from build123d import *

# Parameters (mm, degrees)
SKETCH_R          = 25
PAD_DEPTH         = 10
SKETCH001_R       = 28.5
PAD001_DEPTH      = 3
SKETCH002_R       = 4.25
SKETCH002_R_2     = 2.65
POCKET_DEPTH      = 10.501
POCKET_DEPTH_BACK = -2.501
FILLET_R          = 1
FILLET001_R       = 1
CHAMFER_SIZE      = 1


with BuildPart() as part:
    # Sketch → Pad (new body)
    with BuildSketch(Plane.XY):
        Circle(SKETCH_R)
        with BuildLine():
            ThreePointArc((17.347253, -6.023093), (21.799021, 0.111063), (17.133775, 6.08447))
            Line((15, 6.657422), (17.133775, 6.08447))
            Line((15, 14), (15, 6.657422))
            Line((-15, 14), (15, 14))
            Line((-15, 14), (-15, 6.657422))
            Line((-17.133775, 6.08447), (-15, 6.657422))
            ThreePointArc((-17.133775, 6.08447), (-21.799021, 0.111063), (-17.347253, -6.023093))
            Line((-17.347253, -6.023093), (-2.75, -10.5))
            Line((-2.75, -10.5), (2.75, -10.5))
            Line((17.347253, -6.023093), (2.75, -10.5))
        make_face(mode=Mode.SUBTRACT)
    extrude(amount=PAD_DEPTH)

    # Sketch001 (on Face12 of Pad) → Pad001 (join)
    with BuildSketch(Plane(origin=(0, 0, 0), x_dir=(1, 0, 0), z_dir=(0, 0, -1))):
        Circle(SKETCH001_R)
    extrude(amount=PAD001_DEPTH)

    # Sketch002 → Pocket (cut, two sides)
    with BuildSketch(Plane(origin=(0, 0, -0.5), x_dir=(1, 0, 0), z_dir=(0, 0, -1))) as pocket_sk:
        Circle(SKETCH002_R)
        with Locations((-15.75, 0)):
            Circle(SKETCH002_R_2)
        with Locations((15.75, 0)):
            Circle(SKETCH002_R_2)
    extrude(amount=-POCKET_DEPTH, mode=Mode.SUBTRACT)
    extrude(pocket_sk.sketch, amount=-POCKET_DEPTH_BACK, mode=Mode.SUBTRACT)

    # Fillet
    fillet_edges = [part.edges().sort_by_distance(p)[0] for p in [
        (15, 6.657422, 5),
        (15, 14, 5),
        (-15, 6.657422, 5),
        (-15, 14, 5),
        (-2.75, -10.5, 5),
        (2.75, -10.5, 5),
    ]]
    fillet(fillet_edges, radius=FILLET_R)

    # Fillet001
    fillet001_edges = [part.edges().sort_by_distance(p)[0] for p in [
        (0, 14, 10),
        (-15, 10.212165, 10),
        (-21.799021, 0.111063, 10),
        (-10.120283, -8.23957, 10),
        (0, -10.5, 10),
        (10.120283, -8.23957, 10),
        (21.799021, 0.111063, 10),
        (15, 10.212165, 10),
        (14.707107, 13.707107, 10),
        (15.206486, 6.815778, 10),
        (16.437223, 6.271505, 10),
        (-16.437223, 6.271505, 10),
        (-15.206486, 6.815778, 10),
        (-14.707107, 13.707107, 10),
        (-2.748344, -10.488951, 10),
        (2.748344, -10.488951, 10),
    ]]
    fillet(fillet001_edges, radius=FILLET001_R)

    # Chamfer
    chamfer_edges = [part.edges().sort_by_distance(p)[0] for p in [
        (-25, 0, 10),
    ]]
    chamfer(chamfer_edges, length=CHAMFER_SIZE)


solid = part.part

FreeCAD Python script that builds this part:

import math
import FreeCAD as App
import Part
import Sketcher

V = App.Vector


def edges_at(feature, points):
    """Names of the edges that pass closest to the given points."""
    edges = feature.Shape.Edges
    near = lambda p: min(range(len(edges)), key=lambda i: edges[i].distToShape(Part.Vertex(*p))[0])
    return sorted({f"Edge{near(p) + 1}" for p in points})

doc = App.newDocument("Part")
params = doc.addObject("Spreadsheet::Sheet", "Params")
for row, (alias, value) in enumerate([
    ("sketch1_diameter", "50 mm"),
    ("sketch1_radius", "6.299999 mm"),
    ("sketch1_width", "30 mm"),
    ("sketch1_width2", "5.5 mm"),
    ("pad1_length", "10 mm"),
    ("sketch2_diameter", "57 mm"),
    ("pad2_length", "3 mm"),
    ("sketch3_diameter", "8.5 mm"),
    ("sketch3_diameter2", "5.3 mm"),
    ("fillet_radius", "1 mm"),
    ("fillet2_radius", "1 mm"),
    ("chamfer_size", "1 mm"),
], start=1):
    params.set(f"A{row}", alias)
    params.set(f"B{row}", "=" + value)
    params.setAlias(f"B{row}", alias)

body = doc.addObject("PartDesign::Body", "Body")

# Sketch on XY plane
sketch1 = doc.addObject("Sketcher::SketchObject", "Sketch")
body.addObject(sketch1)
sketch1.AttachmentSupport = (doc.XY_Plane, [""])
sketch1.MapMode = "FlatFace"
sketch1.addGeometry([
    Part.Circle(V(0, 0, 0), V(0, 0, 1), 25),  # 0
    Part.ArcOfCircle(Part.Circle(V(15.5, 0, 0), V(0, 0, 1), 6.3), math.radians(-73), math.radians(75)),  # 1
    Part.LineSegment(V(17.3, -6, 0), V(2.8, -10.5, 0)),  # 2
    Part.LineSegment(V(2.8, -10.5, 0), V(-2.8, -10.5, 0)),  # 3
    Part.LineSegment(V(-2.8, -10.5, 0), V(-17.3, -6, 0)),  # 4
    Part.ArcOfCircle(Part.Circle(V(-15.5, 0, 0), V(0, 0, 1), 6.3), math.radians(105), math.radians(253)),  # 5
    Part.LineSegment(V(-17.1, 6.1, 0), V(-15, 6.7, 0)),  # 6
    Part.LineSegment(V(-15, 6.7, 0), V(-15, 14, 0)),  # 7
    Part.LineSegment(V(-15, 14, 0), V(15, 14, 0)),  # 8
    Part.LineSegment(V(15, 14, 0), V(15, 6.7, 0)),  # 9
    Part.LineSegment(V(15, 6.7, 0), V(17.1, 6.1, 0)),  # 10
], False)
sketch1.addConstraint([
    Sketcher.Constraint("Tangent", 1, 1, 2, 1),
    Sketcher.Constraint("Coincident", 2, 2, 3, 1),
    Sketcher.Constraint("Coincident", 3, 2, 4, 1),
    Sketcher.Constraint("Tangent", 4, 2, 5, 2),
    Sketcher.Constraint("Tangent", 5, 1, 6, 1),
    Sketcher.Constraint("Coincident", 6, 2, 7, 1),
    Sketcher.Constraint("Coincident", 7, 2, 8, 1),
    Sketcher.Constraint("Coincident", 8, 2, 9, 1),
    Sketcher.Constraint("Coincident", 9, 2, 10, 1),
    Sketcher.Constraint("Tangent", 10, 2, 1, 2),
    Sketcher.Constraint("Horizontal", 3),
    Sketcher.Constraint("Vertical", 7),
    Sketcher.Constraint("Horizontal", 8),
    Sketcher.Constraint("Vertical", 9),
    Sketcher.Constraint("Coincident", 0, 3, -1, 1),
    Sketcher.Constraint("Equal", 1, 5),
    Sketcher.Constraint("Symmetric", 1, 3, 5, 3, -1, 1),
    Sketcher.Constraint("Symmetric", 1, 1, 4, 2, -2),
    Sketcher.Constraint("Symmetric", 6, 2, 9, 2, -2),
    Sketcher.Constraint("Diameter", 0, 50.0),
    Sketcher.Constraint("Radius", 1, 6.299999),
    Sketcher.Constraint("DistanceX", 8, 1, 8, 2, 30.0),
    Sketcher.Constraint("DistanceX", 3, 2, 3, 1, 5.5),
    Sketcher.Constraint("DistanceY", -1, 1, 7, 2, 14.0),
    Sketcher.Constraint("DistanceX", 5, 3, 1, 3, 31.000001),
    Sketcher.Constraint("DistanceY", 2, 2, -1, 1, 10.5),
    Sketcher.Constraint("Distance", 6, 2.20936),
])
sketch1.setExpression("Constraints[19]", "Params.sketch1_diameter")
sketch1.setExpression("Constraints[20]", "Params.sketch1_radius")
sketch1.setExpression("Constraints[21]", "Params.sketch1_width")
sketch1.setExpression("Constraints[22]", "Params.sketch1_width2")
pad1 = doc.addObject("PartDesign::Pad", "Pad")
body.addObject(pad1)
pad1.Profile = sketch1
pad1.setExpression("Length", "Params.pad1_length")

# Sketch on XY plane
sketch2 = doc.addObject("Sketcher::SketchObject", "Sketch001")
body.addObject(sketch2)
sketch2.AttachmentSupport = (doc.XY_Plane, [""])
sketch2.MapMode = "FlatFace"
sketch2.addGeometry(Part.Circle(V(0, 0, 0), V(0, 0, 1), 28), False)
sketch2.addConstraint([
    Sketcher.Constraint("Coincident", 0, 3, -1, 1),
    Sketcher.Constraint("Diameter", 0, 57.0),
])
sketch2.setExpression("Constraints[1]", "Params.sketch2_diameter")
pad2 = doc.addObject("PartDesign::Pad", "Pad001")
body.addObject(pad2)
pad2.Profile = sketch2
pad2.setExpression("Length", "Params.pad2_length")
pad2.Reversed = True

# Sketch on XY plane
sketch3 = doc.addObject("Sketcher::SketchObject", "Sketch002")
body.addObject(sketch3)
sketch3.AttachmentSupport = (doc.XY_Plane, [""])
sketch3.MapMode = "FlatFace"
sketch3.AttachmentOffset = App.Placement(V(0, 0, -0.5), App.Rotation())
sketch3.addGeometry([
    Part.Circle(V(0, 0, 0), V(0, 0, 1), 4.2),
    Part.Circle(V(-15.8, 0, 0), V(0, 0, 1), 2.6),
    Part.Circle(V(15.8, 0, 0), V(0, 0, 1), 2.6),
], False)
sketch3.addConstraint([
    Sketcher.Constraint("Coincident", 0, 3, -1, 1),
    Sketcher.Constraint("Equal", 1, 2),
    Sketcher.Constraint("Symmetric", 1, 3, 2, 3, -1, 1),
    Sketcher.Constraint("PointOnObject", 1, 3, -1),
    Sketcher.Constraint("Diameter", 0, 8.5),
    Sketcher.Constraint("Diameter", 1, 5.3),
    Sketcher.Constraint("DistanceX", 1, 3, 2, 3, 31.5),
])
sketch3.setExpression("Constraints[4]", "Params.sketch3_diameter")
sketch3.setExpression("Constraints[5]", "Params.sketch3_diameter2")
pocket1 = doc.addObject("PartDesign::Pocket", "Pocket")
body.addObject(pocket1)
pocket1.Profile = sketch3
pocket1.Type = "ThroughAll"
pocket1.Midplane = True
doc.recompute()

fillet = doc.addObject("PartDesign::Fillet", "Fillet")
body.addObject(fillet)
fillet.Base = (pocket1, edges_at(pocket1, [
    (15, 6.657, 5),
    (15, 14, 5),
    (-15, 6.657, 5),
    (-15, 14, 5),
    (-2.75, -10.5, 5),
    (2.75, -10.5, 5),
]))
fillet.setExpression("Radius", "Params.fillet_radius")
doc.recompute()

fillet2 = doc.addObject("PartDesign::Fillet", "Fillet001")
body.addObject(fillet2)
fillet2.Base = (fillet, edges_at(fillet, [
    (0, 14, 10),
    (-15, 10.212, 10),
    (-21.799, 0.111, 10),
    (-10.12, -8.24, 10),
    (0, -10.5, 10),
    (10.12, -8.24, 10),
    (21.799, 0.111, 10),
    (15, 10.212, 10),
    (14.707, 13.707, 10),
    (15.206, 6.816, 10),
    (16.437, 6.272, 10),
    (-16.437, 6.272, 10),
    (-15.206, 6.816, 10),
    (-14.707, 13.707, 10),
    (-2.748, -10.489, 10),
    (2.748, -10.489, 10),
]))
fillet2.setExpression("Radius", "Params.fillet2_radius")
doc.recompute()

chamfer = doc.addObject("PartDesign::Chamfer", "Chamfer")
body.addObject(chamfer)
chamfer.Base = (fillet2, edges_at(fillet2, [(-25, 0, 10)]))
chamfer.setExpression("Size", "Params.chamfer_size")

doc.recompute()
